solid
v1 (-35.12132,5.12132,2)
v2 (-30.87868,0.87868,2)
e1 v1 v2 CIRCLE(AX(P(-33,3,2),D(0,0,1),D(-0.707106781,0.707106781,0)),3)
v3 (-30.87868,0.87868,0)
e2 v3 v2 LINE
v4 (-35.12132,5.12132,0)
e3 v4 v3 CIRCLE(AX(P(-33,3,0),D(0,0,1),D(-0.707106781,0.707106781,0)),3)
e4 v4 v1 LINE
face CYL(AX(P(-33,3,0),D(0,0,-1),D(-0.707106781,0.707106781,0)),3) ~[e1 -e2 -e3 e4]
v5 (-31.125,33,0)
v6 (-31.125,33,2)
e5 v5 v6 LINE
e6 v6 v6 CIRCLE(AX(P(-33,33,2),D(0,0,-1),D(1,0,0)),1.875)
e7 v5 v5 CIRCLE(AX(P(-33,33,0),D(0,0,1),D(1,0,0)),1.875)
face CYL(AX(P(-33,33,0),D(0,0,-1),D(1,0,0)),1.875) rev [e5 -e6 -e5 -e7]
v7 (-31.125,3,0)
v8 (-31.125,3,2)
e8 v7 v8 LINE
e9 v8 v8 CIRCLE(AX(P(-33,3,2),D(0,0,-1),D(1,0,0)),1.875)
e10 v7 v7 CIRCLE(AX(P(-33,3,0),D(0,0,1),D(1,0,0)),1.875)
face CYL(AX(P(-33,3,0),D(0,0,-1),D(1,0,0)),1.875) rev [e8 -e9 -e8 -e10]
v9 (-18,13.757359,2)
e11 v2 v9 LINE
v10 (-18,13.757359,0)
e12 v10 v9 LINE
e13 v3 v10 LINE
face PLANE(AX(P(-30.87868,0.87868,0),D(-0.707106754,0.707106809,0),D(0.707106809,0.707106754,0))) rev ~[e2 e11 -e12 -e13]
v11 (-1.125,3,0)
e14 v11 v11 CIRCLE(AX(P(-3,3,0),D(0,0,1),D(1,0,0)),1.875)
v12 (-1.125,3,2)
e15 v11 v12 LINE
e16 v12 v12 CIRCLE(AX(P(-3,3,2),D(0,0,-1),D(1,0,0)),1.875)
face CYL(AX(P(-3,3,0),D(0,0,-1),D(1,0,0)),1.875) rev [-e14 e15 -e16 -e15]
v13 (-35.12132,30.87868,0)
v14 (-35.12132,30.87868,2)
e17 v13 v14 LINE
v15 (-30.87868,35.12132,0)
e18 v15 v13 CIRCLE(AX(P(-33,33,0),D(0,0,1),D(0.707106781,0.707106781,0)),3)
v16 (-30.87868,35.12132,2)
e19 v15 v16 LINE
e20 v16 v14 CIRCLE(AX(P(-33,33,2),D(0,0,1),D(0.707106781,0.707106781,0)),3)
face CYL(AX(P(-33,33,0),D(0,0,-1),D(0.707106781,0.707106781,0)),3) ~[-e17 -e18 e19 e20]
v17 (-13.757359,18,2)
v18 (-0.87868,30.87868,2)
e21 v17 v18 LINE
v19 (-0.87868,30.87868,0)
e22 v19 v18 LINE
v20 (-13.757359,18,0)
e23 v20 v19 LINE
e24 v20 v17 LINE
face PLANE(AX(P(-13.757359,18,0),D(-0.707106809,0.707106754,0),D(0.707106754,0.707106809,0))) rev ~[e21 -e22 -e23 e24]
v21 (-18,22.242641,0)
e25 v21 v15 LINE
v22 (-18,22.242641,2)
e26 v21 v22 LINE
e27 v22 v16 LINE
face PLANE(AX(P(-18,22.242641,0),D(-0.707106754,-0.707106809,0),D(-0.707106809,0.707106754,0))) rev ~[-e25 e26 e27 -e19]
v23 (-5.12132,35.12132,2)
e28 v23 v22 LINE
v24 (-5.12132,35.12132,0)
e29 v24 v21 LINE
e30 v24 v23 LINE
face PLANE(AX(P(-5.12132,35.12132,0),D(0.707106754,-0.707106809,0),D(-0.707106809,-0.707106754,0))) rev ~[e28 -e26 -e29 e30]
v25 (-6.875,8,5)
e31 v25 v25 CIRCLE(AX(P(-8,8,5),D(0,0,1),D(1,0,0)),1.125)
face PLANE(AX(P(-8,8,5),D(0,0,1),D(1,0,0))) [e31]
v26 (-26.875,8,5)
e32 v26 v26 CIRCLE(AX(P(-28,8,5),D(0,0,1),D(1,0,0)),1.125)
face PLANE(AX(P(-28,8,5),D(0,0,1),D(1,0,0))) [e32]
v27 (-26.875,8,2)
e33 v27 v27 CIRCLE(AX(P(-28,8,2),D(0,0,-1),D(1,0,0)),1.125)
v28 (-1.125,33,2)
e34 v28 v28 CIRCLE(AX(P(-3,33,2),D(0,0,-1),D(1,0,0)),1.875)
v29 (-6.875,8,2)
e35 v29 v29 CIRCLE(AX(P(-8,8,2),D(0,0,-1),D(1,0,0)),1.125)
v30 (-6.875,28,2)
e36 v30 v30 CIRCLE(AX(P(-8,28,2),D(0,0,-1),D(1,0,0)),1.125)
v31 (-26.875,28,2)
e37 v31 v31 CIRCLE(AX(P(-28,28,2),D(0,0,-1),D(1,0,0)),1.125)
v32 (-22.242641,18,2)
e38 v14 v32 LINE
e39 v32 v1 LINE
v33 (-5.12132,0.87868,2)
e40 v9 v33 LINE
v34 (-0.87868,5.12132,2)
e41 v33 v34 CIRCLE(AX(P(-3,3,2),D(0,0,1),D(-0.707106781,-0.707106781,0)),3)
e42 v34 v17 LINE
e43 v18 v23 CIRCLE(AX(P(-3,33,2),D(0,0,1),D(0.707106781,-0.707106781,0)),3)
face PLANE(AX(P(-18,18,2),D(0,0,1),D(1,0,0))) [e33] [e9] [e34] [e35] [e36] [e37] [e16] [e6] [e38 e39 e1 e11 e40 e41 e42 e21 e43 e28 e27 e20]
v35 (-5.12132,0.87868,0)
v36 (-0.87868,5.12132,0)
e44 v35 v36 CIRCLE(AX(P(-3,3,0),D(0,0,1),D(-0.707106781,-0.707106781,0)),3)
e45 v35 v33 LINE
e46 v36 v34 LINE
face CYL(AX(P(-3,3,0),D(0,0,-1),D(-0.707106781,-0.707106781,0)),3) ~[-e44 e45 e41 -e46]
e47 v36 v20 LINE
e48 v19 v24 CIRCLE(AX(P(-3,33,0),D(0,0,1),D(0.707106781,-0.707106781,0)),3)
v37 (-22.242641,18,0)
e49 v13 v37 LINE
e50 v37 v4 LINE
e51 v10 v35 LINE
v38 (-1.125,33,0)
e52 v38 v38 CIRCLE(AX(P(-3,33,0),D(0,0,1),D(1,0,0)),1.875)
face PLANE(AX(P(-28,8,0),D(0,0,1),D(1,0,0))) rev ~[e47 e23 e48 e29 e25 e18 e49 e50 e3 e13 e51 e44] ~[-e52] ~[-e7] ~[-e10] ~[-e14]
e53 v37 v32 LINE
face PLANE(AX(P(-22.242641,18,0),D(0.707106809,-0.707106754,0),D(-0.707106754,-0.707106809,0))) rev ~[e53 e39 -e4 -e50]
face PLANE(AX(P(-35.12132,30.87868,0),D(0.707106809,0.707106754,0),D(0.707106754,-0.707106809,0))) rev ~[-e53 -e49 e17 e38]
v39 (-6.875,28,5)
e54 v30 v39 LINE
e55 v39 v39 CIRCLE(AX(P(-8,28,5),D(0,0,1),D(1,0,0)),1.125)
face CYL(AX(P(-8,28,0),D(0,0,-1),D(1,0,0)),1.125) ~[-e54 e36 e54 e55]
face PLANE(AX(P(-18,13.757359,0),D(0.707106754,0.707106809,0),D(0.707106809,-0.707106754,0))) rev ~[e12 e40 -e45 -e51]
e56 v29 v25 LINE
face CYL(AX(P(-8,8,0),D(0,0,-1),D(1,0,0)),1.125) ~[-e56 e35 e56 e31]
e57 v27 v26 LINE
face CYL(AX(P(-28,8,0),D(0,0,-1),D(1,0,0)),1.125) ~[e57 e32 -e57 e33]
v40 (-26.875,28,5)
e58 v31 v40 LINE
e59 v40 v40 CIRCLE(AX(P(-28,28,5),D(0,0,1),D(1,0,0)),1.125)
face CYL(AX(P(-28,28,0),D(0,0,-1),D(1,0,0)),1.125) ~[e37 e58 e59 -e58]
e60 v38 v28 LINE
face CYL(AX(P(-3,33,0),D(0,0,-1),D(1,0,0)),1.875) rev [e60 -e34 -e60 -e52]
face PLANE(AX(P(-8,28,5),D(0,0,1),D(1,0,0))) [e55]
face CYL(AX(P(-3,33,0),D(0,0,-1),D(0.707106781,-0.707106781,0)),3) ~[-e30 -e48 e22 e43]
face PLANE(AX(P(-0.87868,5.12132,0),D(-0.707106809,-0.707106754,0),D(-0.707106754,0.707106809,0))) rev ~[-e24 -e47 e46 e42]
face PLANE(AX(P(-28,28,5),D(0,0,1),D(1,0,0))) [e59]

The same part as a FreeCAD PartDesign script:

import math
import FreeCAD as App
import Part
import Sketcher
from FreeCAD import Vector

doc = App.newDocument("Part")
params = doc.addObject("Spreadsheet::Sheet", "Params")
for row, (alias, value) in enumerate([
    ("sketch1_radius", "3 mm"),
    ("pad1_length", "2 mm"),
    ("sketch2_diameter", "3.75 mm"),
    ("pocket1_length", "10 mm"),
    ("sketch3_diameter", "2.25 mm"),
    ("pad2_length", "5 mm"),
], start=1):
    params.set(f"A{row}", alias)
    params.set(f"B{row}", "=" + value)
    params.setAlias(f"B{row}", alias)

body = doc.addObject("PartDesign::Body", "Body")

# Sketch on XY plane
sketch1 = doc.addObject("Sketcher::SketchObject", "Sketch")
body.addObject(sketch1)
sketch1.AttachmentSupport = (doc.XY_Plane, [""])
sketch1.MapMode = "FlatFace"
sketch1.addGeometry([
    Part.LineSegment(Vector(-18, 22.2, 0), Vector(-30.9, 35.1, 0)),  # 0
    Part.ArcOfCircle(Part.Circle(Vector(-33, 33, 0), Vector(0, 0, 1), 3), math.radians(45), math.radians(225)),  # 1
    Part.LineSegment(Vector(-35.1, 30.9, 0), Vector(-22.2, 18, 0)),  # 2
    Part.LineSegment(Vector(-22.2, 18, 0), Vector(-35.1, 5.1, 0)),  # 3
    Part.ArcOfCircle(Part.Circle(Vector(-33, 3, 0), Vector(0, 0, 1), 3), math.radians(135), math.radians(315)),  # 4
    Part.LineSegment(Vector(-30.9, 0.9, 0), Vector(-18, 13.8, 0)),  # 5
    Part.LineSegment(Vector(-18, 13.8, 0), Vector(-5.1, 0.9, 0)),  # 6
    Part.ArcOfCircle(Part.Circle(Vector(-3, 3, 0), Vector(0, 0, 1), 3), math.radians(-135), math.radians(45)),  # 7
    Part.LineSegment(Vector(-0.9, 5.1, 0), Vector(-13.8, 18, 0)),  # 8
    Part.LineSegment(Vector(-13.8, 18, 0), Vector(-0.9, 30.9, 0)),  # 9
    Part.ArcOfCircle(Part.Circle(Vector(-3, 33, 0), Vector(0, 0, 1), 3), math.radians(-45), math.radians(135)),  # 10
    Part.LineSegment(Vector(-5.1, 35.1, 0), Vector(-18, 22.2, 0)),  # 11
], False)
sketch1.addConstraint([
    Sketcher.Constraint("Tangent", 0, 2, 1, 1),
    Sketcher.Constraint("Tangent", 1, 2, 2, 1),
    Sketcher.Constraint("Coincident", 2, 2, 3, 1),
    Sketcher.Constraint("Tangent", 3, 2, 4, 1),
    Sketcher.Constraint("Tangent", 4, 2, 5, 1),
    Sketcher.Constraint("Coincident", 5, 2, 6, 1),
    Sketcher.Constraint("Tangent", 6, 2, 7, 1),
    Sketcher.Constraint("Tangent", 7, 2, 8, 1),
    Sketcher.Constraint("Coincident", 8, 2, 9, 1),
    Sketcher.Constraint("Tangent", 9, 2, 10, 1),
    Sketcher.Constraint("Tangent", 10, 2, 11, 1),
    Sketcher.Constraint("Coincident", 11, 2, 0, 1),
    Sketcher.Constraint("Equal", 1, 4),
    Sketcher.Constraint("Equal", 4, 7),
    Sketcher.Constraint("Equal", 7, 10),
    Sketcher.Constraint("Parallel", 0, 2),
    Sketcher.Constraint("Perpendicular", 2, 3),
    Sketcher.Constraint("Parallel", 3, 5),
    Sketcher.Constraint("Perpendicular", 5, 6),
    Sketcher.Constraint("Parallel", 6, 8),
    Sketcher.Constraint("Perpendicular", 8, 9),
    Sketcher.Constraint("Parallel", 9, 11),
    Sketcher.Constraint("Horizontal", 4, 3, 7, 3),
    Sketcher.Constraint("Horizontal", 1, 3, 10, 3),
    Sketcher.Constraint("Horizontal", 4, 2, 6, 2),
    Sketcher.Constraint("Horizontal", 2, 2, 8, 2),
    Sketcher.Constraint("Vertical", 1, 3, 4, 3),
    Sketcher.Constraint("Equal", 0, 2),
    Sketcher.Constraint("Radius", 1, 3.0),
    Sketcher.Constraint("DistanceX", 1, 3, -1, 1, 33.0),
    Sketcher.Constraint("DistanceY", -1, 1, 1, 3, 33.0),
    Sketcher.Constraint("DistanceY", -1, 1, 4, 3, 3.0),
])
sketch1.setExpression("Constraints[28]", "Params.sketch1_radius")
pad1 = doc.addObject("PartDesign::Pad", "Pad")
body.addObject(pad1)
pad1.Profile = sketch1
pad1.setExpression("Length", "Params.pad1_length")

# Sketch on XY plane
sketch2 = doc.addObject("Sketcher::SketchObject", "Sketch001")
body.addObject(sketch2)
sketch2.AttachmentSupport = (doc.XY_Plane, [""])
sketch2.MapMode = "FlatFace"
sketch2.addGeometry([
    Part.Circle(Vector(-33, 33, 0), Vector(0, 0, 1), 1.9),
    Part.Circle(Vector(-3, 33, 0), Vector(0, 0, 1), 1.9),
    Part.Circle(Vector(-3, 3, 0), Vector(0, 0, 1), 1.9),
    Part.Circle(Vector(-33, 3, 0), Vector(0, 0, 1), 1.9),
], False)
sketch2.addConstraint([
    Sketcher.Constraint("Equal", 0, 1),
    Sketcher.Constraint("Equal", 1, 2),
    Sketcher.Constraint("Equal", 2, 3),
    Sketcher.Constraint("Horizontal", 0, 3, 1, 3),
    Sketcher.Constraint("Horizontal", 2, 3, 3, 3),
    Sketcher.Constraint("Vertical", 1, 3, 2, 3),
    Sketcher.Constraint("Vertical", 0, 3, 3, 3),
    Sketcher.Constraint("Diameter", 0, 3.75),
    Sketcher.Constraint("DistanceX", 0, 3, -1, 1, 33.0),
    Sketcher.Constraint("DistanceY", -1, 1, 0, 3, 33.0),
    Sketcher.Constraint("DistanceX", 1, 3, -1, 1, 3.0),
    Sketcher.Constraint("DistanceY", -1, 1, 2, 3, 3.0),
])
sketch2.setExpression("Constraints[7]", "Params.sketch2_diameter")
pocket1 = doc.addObject("PartDesign::Pocket", "Pocket")
body.addObject(pocket1)
pocket1.Profile = sketch2
pocket1.setExpression("Length", "Params.pocket1_length")
pocket1.Reversed = True

# Sketch on XY plane
sketch3 = doc.addObject("Sketcher::SketchObject", "Sketch002")
body.addObject(sketch3)
sketch3.AttachmentSupport = (doc.XY_Plane, [""])
sketch3.MapMode = "FlatFace"
sketch3.addGeometry([
    Part.Circle(Vector(-28, 8, 0), Vector(0, 0, 1), 1.1),
    Part.Circle(Vector(-8, 8, 0), Vector(0, 0, 1), 1.1),
    Part.Circle(Vector(-8, 28, 0), Vector(0, 0, 1), 1.1),
    Part.Circle(Vector(-28, 28, 0), Vector(0, 0, 1), 1.1),
], False)
sketch3.addConstraint([
    Sketcher.Constraint("Equal", 0, 1),
    Sketcher.Constraint("Equal", 1, 2),
    Sketcher.Constraint("Equal", 2, 3),
    Sketcher.Constraint("Horizontal", 0, 3, 1, 3),
    Sketcher.Constraint("Horizontal", 2, 3, 3, 3),
    Sketcher.Constraint("Vertical", 1, 3, 2, 3),
    Sketcher.Constraint("Vertical", 0, 3, 3, 3),
    Sketcher.Constraint("Diameter", 0, 2.25),
    Sketcher.Constraint("DistanceX", 0, 3, -1, 1, 28.0),
    Sketcher.Constraint("DistanceY", -1, 1, 0, 3, 8.0),
    Sketcher.Constraint("DistanceX", 1, 3, -1, 1, 8.0),
    Sketcher.Constraint("DistanceY", -1, 1, 2, 3, 28.0),
])
sketch3.setExpression("Constraints[7]", "Params.sketch3_diameter")
pad2 = doc.addObject("PartDesign::Pad", "Pad001")
body.addObject(pad2)
pad2.Profile = sketch3
pad2.setExpression("Length", "Params.pad2_length")

doc.recompute()
